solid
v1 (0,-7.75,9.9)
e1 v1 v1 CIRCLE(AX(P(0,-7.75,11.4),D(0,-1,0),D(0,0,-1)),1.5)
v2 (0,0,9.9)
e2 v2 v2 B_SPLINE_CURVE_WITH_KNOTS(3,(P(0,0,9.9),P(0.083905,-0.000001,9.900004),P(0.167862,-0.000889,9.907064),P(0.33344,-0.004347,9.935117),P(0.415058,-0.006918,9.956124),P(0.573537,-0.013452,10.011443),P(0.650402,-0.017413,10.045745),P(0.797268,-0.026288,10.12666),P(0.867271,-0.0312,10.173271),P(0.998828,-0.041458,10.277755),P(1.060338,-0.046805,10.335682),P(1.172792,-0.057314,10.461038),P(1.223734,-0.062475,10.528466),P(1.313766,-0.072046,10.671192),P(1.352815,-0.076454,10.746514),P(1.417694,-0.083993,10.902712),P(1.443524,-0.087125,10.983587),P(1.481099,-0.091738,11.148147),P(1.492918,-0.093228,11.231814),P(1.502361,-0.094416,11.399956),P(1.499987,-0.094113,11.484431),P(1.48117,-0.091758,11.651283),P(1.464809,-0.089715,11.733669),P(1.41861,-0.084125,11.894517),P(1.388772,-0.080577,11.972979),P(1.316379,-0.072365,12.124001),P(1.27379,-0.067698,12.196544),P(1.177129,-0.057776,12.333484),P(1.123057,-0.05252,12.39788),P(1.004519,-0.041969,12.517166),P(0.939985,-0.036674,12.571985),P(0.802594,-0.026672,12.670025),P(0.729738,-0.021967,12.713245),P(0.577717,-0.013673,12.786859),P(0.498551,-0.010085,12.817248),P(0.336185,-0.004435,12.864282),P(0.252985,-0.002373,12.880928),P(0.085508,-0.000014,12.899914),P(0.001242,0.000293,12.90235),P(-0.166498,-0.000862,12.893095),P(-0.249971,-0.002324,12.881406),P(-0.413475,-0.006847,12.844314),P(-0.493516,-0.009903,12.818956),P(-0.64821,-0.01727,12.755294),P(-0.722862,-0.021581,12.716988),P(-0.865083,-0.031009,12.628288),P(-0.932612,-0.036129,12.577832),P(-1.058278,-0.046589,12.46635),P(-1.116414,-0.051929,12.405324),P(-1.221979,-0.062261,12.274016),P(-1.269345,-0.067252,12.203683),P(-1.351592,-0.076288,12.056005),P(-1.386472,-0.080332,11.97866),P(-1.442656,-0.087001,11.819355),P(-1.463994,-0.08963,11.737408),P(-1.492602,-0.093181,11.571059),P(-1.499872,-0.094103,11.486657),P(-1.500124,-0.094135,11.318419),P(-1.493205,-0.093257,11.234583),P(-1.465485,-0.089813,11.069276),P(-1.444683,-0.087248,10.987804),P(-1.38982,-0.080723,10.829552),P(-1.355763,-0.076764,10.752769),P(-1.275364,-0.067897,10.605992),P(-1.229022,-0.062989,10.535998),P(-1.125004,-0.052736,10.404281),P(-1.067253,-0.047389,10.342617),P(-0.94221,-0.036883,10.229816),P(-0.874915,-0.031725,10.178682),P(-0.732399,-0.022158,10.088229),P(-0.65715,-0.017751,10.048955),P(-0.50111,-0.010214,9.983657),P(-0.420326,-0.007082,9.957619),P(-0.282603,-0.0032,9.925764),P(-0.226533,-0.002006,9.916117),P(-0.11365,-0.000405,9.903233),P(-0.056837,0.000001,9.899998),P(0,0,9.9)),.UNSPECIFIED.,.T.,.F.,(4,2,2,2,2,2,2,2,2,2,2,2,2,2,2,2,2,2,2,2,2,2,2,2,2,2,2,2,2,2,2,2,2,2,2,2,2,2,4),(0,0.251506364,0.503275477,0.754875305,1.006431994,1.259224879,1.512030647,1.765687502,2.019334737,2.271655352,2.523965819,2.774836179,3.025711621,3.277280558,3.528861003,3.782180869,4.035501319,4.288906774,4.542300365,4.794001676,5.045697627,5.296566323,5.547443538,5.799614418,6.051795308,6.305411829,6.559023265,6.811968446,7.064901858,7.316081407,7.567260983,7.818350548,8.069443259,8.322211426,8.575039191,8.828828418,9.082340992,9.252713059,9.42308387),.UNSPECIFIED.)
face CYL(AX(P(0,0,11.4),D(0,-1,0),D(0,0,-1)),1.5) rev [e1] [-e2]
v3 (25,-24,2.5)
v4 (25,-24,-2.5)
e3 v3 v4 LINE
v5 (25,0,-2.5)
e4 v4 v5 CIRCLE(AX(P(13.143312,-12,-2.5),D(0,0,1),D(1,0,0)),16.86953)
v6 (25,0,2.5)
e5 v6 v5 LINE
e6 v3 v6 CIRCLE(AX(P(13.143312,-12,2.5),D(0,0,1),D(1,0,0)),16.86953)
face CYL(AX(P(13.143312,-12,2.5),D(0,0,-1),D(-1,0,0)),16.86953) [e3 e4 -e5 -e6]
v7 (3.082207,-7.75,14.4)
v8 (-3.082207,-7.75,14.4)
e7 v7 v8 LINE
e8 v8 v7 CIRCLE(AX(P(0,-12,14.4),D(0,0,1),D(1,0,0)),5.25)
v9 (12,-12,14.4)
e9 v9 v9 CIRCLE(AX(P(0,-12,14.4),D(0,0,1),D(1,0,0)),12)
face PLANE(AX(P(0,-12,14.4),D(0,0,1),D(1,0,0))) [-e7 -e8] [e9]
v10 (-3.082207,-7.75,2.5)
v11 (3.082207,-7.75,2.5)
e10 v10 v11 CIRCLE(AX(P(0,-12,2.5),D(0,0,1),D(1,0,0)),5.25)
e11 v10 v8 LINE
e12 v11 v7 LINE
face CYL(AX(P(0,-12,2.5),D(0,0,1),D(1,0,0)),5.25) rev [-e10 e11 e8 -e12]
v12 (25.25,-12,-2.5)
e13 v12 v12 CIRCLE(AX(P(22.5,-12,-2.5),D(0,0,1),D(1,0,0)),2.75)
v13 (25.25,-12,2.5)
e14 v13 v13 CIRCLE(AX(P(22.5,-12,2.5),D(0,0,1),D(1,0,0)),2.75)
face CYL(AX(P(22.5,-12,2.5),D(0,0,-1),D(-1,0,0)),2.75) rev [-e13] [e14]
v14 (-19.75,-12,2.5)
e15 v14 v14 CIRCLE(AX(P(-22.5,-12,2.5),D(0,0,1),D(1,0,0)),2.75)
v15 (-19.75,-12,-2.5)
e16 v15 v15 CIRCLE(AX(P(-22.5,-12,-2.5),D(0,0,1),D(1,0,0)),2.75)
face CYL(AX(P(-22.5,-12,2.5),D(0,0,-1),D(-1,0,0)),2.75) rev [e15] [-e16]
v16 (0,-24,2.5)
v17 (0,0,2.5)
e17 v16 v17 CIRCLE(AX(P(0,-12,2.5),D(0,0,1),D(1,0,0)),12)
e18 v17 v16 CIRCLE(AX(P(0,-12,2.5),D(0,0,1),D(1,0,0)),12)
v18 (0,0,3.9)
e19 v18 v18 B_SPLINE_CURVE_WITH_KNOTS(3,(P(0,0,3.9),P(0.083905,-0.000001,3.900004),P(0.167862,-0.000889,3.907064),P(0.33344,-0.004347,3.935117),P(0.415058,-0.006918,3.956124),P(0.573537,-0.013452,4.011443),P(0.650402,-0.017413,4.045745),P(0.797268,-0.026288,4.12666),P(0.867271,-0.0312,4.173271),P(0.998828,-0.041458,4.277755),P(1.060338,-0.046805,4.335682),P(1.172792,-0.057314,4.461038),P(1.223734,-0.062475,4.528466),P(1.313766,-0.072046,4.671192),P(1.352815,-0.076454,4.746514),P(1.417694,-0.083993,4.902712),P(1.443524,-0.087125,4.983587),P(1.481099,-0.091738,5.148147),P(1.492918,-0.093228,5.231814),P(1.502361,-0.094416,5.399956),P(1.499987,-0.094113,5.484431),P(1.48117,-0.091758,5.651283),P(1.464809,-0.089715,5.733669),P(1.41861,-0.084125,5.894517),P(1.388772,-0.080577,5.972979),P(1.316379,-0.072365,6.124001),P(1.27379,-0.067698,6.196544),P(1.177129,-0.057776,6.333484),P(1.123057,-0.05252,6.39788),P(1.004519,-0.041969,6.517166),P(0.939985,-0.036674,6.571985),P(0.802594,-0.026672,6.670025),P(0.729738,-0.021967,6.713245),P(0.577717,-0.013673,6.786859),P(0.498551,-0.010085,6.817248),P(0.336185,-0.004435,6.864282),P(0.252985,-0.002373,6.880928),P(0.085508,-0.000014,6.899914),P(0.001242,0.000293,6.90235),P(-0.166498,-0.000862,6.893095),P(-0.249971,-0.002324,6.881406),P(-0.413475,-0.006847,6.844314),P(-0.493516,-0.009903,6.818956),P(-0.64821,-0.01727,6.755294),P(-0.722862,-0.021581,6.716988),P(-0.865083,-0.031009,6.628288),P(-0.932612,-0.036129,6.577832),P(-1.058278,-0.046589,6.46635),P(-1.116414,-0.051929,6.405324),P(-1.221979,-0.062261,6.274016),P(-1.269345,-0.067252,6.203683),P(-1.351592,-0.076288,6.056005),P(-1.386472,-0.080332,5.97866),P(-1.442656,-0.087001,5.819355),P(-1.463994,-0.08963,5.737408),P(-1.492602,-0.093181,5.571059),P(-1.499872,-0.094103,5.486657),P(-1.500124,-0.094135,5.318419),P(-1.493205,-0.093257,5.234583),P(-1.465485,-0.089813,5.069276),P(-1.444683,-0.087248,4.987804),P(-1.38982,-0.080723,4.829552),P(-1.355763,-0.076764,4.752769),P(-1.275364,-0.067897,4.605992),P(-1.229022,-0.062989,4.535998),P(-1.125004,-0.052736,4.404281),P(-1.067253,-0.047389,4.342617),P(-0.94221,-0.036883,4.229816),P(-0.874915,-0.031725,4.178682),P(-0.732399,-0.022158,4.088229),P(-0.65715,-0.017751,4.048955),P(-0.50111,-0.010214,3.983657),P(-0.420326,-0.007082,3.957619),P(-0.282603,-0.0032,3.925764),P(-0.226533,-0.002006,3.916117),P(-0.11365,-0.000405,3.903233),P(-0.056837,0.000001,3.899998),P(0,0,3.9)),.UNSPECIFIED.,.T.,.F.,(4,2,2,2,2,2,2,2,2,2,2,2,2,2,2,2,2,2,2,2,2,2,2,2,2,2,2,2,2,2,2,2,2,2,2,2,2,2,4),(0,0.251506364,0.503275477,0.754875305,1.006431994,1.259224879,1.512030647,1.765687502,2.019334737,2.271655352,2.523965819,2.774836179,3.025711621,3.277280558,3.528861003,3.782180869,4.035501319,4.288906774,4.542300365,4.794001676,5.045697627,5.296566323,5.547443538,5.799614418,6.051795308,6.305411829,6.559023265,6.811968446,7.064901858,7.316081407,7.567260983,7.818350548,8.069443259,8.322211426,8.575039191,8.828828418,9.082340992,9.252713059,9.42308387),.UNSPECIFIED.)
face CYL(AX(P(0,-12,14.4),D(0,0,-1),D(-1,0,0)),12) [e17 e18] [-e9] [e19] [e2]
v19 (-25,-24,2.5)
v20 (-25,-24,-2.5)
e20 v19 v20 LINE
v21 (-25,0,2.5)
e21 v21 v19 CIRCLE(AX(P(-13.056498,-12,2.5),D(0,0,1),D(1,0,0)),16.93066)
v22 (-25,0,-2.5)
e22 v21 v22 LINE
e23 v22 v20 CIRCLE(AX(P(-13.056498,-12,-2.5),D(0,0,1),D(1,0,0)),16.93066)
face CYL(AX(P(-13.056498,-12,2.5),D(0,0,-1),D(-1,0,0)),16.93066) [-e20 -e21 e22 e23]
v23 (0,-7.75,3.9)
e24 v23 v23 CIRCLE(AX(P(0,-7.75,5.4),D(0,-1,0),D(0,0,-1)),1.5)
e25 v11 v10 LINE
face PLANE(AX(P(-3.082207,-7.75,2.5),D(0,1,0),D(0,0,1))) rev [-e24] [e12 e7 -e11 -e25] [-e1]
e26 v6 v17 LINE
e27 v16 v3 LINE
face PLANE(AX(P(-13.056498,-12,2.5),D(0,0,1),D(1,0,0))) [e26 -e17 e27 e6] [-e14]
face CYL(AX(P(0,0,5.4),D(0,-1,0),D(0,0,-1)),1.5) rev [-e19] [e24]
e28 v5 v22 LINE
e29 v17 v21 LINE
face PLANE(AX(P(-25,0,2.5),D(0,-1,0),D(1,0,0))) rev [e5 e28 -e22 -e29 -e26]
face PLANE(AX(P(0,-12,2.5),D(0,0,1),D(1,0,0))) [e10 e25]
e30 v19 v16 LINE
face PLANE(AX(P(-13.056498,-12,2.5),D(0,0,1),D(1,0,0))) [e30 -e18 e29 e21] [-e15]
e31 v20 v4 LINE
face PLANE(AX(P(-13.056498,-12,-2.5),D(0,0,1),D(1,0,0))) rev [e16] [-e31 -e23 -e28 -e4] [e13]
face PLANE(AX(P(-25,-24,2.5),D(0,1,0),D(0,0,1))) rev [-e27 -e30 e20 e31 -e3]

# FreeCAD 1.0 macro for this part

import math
import FreeCAD as App
import Part
import Sketcher

V = App.Vector
Q = App.Units.Quantity

doc = App.newDocument("Part")
body = doc.addObject("PartDesign::Body", "Body")

sketch1 = body.newObject("Sketcher::SketchObject", "Sketch")
sketch1.AttachmentSupport = (doc.getObject("XY_Plane"), [""])
sketch1.MapMode = "FlatFace"
sketch1.addGeometry([
    Part.LineSegment(V(25, 0, 0), V(-25, 0, 0)),
    Part.ArcOfCircle(Part.Circle(V(-13.1, -12, 0), V(0, 0, 1), 16.9), math.radians(135), math.radians(225)),
    Part.LineSegment(V(-25, -24, 0), V(25, -24, 0)),
    Part.ArcOfCircle(Part.Circle(V(13.1, -12, 0), V(0, 0, 1), 16.9), math.radians(-45), math.radians(45)),
    Part.Circle(V(22.5, -12, 0), V(0, 0, 1), 2.8),
    Part.Circle(V(-22.5, -12, 0), V(0, 0, 1), 2.8),
], False)
sketch1.addConstraint([
    Sketcher.Constraint("Coincident", 0, 2, 1, 1),
    Sketcher.Constraint("Coincident", 1, 2, 2, 1),
    Sketcher.Constraint("Coincident", 2, 2, 3, 1),
    Sketcher.Constraint("Coincident", 3, 2, 0, 1),
    Sketcher.Constraint("Horizontal", 0),
    Sketcher.Constraint("Horizontal", 2),
    Sketcher.Constraint("Equal", 4, 5),
    Sketcher.Constraint("Symmetric", 0, 2, 3, 2, -1, 1),
    Sketcher.Constraint("Symmetric", 4, 3, 5, 3, -2),
    Sketcher.Constraint("Horizontal", 1, 3, 3, 3),
    Sketcher.Constraint("Horizontal", 3, 3, 4, 3),
    Sketcher.Constraint("Vertical", 0, 2, 1, 2),
    Sketcher.Constraint("Diameter", 4, Q("5.5 mm")),
    Sketcher.Constraint("DistanceX", 0, 2, 0, 1, Q("50 mm")),
    Sketcher.Constraint("DistanceY", 1, 3, -1, 1, Q("12 mm")),
    Sketcher.Constraint("DistanceX", 5, 3, 4, 3, Q("45 mm")),
    Sketcher.Constraint("Radius", 1, Q("16.93066 mm")),
    Sketcher.Constraint("Radius", 3, Q("16.86953 mm")),
])
pad1 = body.newObject("PartDesign::Pad", "Pad")
pad1.Profile = sketch1
pad1.Length = 5
pad1.Midplane = True

sketch2 = body.newObject("Sketcher::SketchObject", "Sketch001")
sketch2.AttachmentSupport = (doc.getObject("XY_Plane"), [""])
sketch2.MapMode = "FlatFace"
sketch2.AttachmentOffset = App.Placement(V(0, 0, 2.5), App.Rotation())
sketch2.addGeometry(Part.Circle(V(0, -12, 0), V(0, 0, 1), 12), False)
sketch2.addConstraint([
    Sketcher.Constraint("PointOnObject", 0, 3, -2),
    Sketcher.Constraint("Diameter", 0, Q("24 mm")),
    Sketcher.Constraint("DistanceY", 0, 3, -1, 1, Q("12 mm")),
])
pad2 = body.newObject("PartDesign::Pad", "Pad001")
pad2.Profile = sketch2
pad2.Length = 11.9

sketch3 = body.newObject("Sketcher::SketchObject", "Sketch002")
sketch3.AttachmentSupport = (doc.getObject("XY_Plane"), [""])
sketch3.MapMode = "FlatFace"
sketch3.AttachmentOffset = App.Placement(V(0, 0, 14.4), App.Rotation())
sketch3.addGeometry([
    Part.LineSegment(V(3, -8, 0), V(-3, -8, 0)),
    Part.ArcOfCircle(Part.Circle(V(0, -12, 0), V(0, 0, 1), 5), math.radians(126), math.radians(414)),
], False)
sketch3.addConstraint([
    Sketcher.Constraint("Coincident", 0, 1, 1, 2),
    Sketcher.Constraint("Coincident", 1, 1, 0, 2),
    Sketcher.Constraint("Horizontal", 0),
    Sketcher.Constraint("PointOnObject", 1, 3, -2),
    Sketcher.Constraint("Radius", 1, Q("5.25 mm")),
    Sketcher.Constraint("DistanceY", 1, 3, -1, 1, Q("12 mm")),
    Sketcher.Constraint("DistanceY", 0, 1, -1, 1, Q("7.75 mm")),
])
pocket1 = body.newObject("PartDesign::Pocket", "Pocket")
pocket1.Profile = sketch3
pocket1.Length = 11.9

sketch4 = body.newObject("Sketcher::SketchObject", "Sketch003")
sketch4.AttachmentSupport = (doc.getObject("XZ_Plane"), [""])
sketch4.MapMode = "FlatFace"
sketch4.AttachmentOffset = App.Placement(V(0, 0, 7.75), App.Rotation())
sketch4.addGeometry([
    Part.Circle(V(0, 11.4, 0), V(0, 0, 1), 1.5),
    Part.Circle(V(0, 5.4, 0), V(0, 0, 1), 1.5),
], False)
sketch4.addConstraint([
    Sketcher.Constraint("Equal", 0, 1),
    Sketcher.Constraint("PointOnObject", 0, 3, -2),
    Sketcher.Constraint("PointOnObject", 1, 3, -2),
    Sketcher.Constraint("Diameter", 0, Q("3 mm")),
    Sketcher.Constraint("DistanceY", 1, 3, 0, 3, Q("6 mm")),
    Sketcher.Constraint("DistanceY", -1, 1, 0, 3, Q("11.4 mm")),
])
pocket2 = body.newObject("PartDesign::Pocket", "Pocket001")
pocket2.Profile = sketch4
pocket2.Type = "ThroughAll"

doc.recompute()
